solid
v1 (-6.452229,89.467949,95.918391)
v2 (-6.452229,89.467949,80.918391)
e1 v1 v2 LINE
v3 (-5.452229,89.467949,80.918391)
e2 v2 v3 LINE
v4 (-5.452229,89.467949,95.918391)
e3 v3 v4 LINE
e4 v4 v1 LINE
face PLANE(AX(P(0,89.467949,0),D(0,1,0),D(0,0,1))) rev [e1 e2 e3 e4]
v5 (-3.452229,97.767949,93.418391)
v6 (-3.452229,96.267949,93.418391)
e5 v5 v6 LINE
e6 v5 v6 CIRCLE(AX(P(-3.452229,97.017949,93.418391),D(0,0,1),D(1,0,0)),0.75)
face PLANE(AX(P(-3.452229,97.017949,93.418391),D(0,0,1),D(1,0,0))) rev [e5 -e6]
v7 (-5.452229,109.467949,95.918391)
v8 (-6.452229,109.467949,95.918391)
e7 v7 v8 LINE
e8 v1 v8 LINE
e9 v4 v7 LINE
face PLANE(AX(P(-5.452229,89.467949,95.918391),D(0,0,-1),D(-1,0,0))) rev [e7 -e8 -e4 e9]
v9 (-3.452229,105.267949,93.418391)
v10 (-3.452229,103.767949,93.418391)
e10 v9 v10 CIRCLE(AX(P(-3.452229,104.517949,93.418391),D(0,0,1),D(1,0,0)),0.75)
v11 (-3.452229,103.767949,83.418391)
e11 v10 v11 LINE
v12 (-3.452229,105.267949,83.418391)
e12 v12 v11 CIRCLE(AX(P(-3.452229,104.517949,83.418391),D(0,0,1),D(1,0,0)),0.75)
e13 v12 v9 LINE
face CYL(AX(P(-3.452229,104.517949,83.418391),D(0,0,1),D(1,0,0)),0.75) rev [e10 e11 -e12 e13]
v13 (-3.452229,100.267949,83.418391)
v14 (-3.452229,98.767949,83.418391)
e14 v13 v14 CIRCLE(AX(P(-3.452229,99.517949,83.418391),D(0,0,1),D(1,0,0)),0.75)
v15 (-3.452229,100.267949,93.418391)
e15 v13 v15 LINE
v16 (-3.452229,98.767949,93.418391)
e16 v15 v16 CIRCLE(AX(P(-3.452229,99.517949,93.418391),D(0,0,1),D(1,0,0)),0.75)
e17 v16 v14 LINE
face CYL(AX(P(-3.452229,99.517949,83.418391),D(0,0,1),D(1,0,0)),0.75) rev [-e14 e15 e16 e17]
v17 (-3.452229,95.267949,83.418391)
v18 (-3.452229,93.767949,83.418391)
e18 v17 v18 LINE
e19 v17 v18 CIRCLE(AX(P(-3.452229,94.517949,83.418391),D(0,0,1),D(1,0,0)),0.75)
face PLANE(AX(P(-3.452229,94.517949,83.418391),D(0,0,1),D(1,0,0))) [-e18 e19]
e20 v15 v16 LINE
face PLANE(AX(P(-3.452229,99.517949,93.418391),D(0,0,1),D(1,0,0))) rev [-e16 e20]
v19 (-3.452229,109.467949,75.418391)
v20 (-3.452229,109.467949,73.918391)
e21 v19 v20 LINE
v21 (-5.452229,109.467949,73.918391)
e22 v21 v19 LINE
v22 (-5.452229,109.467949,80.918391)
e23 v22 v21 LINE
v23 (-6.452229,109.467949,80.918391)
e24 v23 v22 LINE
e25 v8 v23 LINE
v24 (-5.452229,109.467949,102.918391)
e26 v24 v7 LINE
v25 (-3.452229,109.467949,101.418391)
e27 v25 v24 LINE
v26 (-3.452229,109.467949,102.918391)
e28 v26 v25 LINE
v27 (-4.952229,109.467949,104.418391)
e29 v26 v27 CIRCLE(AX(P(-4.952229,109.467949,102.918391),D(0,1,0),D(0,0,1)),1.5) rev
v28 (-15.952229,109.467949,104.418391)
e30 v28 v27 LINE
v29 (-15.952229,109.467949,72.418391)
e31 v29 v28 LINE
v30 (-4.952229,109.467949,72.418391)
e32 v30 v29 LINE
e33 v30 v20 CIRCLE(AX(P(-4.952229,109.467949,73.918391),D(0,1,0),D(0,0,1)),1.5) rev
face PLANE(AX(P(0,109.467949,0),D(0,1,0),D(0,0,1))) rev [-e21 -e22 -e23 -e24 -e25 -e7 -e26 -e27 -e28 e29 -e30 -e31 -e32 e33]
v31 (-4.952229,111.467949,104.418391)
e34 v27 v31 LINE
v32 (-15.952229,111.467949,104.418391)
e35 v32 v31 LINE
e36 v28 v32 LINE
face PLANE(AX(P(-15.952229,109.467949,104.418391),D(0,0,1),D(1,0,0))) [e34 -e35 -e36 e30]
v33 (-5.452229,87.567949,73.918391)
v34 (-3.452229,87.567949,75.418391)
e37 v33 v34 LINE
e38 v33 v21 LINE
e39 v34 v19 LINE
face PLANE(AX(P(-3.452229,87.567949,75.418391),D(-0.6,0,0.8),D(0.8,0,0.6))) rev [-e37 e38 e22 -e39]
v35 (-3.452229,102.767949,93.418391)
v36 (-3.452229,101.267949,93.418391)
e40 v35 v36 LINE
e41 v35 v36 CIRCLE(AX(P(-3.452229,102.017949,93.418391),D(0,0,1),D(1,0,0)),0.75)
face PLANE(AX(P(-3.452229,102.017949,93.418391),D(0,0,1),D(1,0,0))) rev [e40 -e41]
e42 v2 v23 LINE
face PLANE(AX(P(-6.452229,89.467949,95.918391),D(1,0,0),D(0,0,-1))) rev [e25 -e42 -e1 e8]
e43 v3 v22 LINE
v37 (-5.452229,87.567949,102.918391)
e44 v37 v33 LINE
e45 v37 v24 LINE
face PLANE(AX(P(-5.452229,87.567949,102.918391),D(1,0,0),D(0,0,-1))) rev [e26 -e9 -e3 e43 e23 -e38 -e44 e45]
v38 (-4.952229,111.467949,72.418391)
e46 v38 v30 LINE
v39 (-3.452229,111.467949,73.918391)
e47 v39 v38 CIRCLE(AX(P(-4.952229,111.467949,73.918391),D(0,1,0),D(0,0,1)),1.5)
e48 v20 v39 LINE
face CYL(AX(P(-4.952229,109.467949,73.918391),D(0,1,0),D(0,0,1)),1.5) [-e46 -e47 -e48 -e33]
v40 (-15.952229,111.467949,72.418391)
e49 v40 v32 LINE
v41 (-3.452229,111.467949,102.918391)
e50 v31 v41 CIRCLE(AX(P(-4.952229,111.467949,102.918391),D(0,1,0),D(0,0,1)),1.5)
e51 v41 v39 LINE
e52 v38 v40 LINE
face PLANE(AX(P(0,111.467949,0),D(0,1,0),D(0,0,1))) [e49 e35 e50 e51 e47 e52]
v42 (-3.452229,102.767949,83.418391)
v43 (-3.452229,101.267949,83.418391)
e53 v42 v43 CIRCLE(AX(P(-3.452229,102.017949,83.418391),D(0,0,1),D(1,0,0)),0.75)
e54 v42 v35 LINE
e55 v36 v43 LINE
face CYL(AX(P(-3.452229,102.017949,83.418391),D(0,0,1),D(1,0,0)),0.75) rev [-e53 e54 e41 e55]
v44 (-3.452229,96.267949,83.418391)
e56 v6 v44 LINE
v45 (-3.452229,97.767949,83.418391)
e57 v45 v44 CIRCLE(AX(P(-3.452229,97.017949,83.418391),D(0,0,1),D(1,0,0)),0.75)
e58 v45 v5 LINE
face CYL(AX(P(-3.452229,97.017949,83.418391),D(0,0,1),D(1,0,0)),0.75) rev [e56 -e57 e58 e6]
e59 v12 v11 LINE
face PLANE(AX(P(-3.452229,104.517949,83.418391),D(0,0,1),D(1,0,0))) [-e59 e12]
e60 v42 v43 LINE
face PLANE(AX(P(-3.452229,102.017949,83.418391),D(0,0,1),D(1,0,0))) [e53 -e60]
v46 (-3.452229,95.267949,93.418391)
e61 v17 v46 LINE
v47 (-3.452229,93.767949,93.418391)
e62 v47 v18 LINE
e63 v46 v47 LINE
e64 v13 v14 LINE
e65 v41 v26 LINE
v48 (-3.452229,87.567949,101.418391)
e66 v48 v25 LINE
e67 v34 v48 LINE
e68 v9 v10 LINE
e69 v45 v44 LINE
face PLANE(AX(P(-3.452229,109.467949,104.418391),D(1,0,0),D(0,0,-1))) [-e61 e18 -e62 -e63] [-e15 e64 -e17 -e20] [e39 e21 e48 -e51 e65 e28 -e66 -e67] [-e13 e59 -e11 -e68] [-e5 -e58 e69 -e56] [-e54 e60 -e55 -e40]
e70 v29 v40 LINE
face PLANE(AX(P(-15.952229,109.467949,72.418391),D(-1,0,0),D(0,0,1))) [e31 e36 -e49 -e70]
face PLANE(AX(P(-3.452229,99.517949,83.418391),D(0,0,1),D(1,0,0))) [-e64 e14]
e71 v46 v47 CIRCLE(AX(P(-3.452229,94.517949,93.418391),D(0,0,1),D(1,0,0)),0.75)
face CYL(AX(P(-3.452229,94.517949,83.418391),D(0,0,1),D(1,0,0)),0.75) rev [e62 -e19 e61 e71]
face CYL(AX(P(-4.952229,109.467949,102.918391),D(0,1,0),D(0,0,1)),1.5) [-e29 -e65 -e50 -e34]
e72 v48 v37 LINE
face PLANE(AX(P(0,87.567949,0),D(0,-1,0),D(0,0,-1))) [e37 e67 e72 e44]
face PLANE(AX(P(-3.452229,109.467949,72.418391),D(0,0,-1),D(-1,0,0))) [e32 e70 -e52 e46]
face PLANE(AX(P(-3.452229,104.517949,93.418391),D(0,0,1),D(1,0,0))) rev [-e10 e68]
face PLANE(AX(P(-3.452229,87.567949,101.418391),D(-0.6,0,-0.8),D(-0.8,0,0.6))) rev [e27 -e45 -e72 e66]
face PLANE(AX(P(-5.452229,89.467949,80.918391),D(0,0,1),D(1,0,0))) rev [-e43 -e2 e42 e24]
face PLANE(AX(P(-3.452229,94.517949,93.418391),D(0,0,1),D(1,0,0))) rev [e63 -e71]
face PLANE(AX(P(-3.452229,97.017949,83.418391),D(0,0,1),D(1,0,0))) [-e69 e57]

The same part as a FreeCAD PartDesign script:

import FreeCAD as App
import Part
import Sketcher
from FreeCAD import Vector


def edges_at(feature, points):
    """Names of the edges that pass closest to the given points."""
    edges = feature.Shape.Edges
    near = lambda p: min(range(len(edges)), key=lambda i: edges[i].distToShape(Part.Vertex(*p))[0])
    return sorted({f"Edge{near(p) + 1}" for p in points})

doc = App.newDocument("Part")
body = doc.addObject("PartDesign::Body", "Body")

sketch1 = body.newObject("Sketcher::SketchObject", "Sketch")
sketch1.AttachmentSupport = (doc.getObject("XZ_Plane"), [""])
sketch1.MapMode = "FlatFace"
sketch1.AttachmentOffset = App.Placement(Vector(0, 0, -111.467949), App.Rotation())
sketch1.addGeometry([
    Part.LineSegment(Vector(-16, 72, 0), Vector(-16, 104, 0)),
    Part.LineSegment(Vector(-16, 104, 0), Vector(-3, 104, 0)),
    Part.LineSegment(Vector(-3, 104, 0), Vector(-3, 72, 0)),
    Part.LineSegment(Vector(-3, 72, 0), Vector(-16, 72, 0)),
], False)
sketch1.addConstraint([
    Sketcher.Constraint("Coincident", 0, 2, 1, 1),
    Sketcher.Constraint("Coincident", 1, 2, 2, 1),
    Sketcher.Constraint("Coincident", 2, 2, 3, 1),
    Sketcher.Constraint("Coincident", 3, 2, 0, 1),
    Sketcher.Constraint("Vertical", 0),
    Sketcher.Constraint("Horizontal", 1),
    Sketcher.Constraint("Vertical", 2),
    Sketcher.Constraint("Horizontal", 3),
    Sketcher.Constraint("DistanceY", 0, 1, 0, 2, 32.0),
    Sketcher.Constraint("DistanceX", 1, 1, 1, 2, 12.5),
    Sketcher.Constraint("DistanceX", 0, 2, -1, 1, 15.952229),
    Sketcher.Constraint("DistanceY", -1, 1, 0, 2, 104.418391),
])
pad1 = body.newObject("PartDesign::Pad", "Pad")
pad1.Profile = sketch1
pad1.Length = 2

sketch2 = body.newObject("Sketcher::SketchObject", "Sketch001")
sketch2.AttachmentSupport = (doc.getObject("XZ_Plane"), [""])
sketch2.MapMode = "FlatFace"
sketch2.AttachmentOffset = App.Placement(Vector(0, 0, -109.467949), App.Rotation())
sketch2.addGeometry([
    Part.LineSegment(Vector(-3.5, 101.4, 0), Vector(-5.5, 102.9, 0)),
    Part.LineSegment(Vector(-5.5, 102.9, 0), Vector(-5.5, 73.9, 0)),
    Part.LineSegment(Vector(-5.5, 73.9, 0), Vector(-3.5, 75.4, 0)),
    Part.LineSegment(Vector(-3.5, 75.4, 0), Vector(-3.5, 101.4, 0)),
], False)
sketch2.addConstraint([
    Sketcher.Constraint("Coincident", 0, 2, 1, 1),
    Sketcher.Constraint("Coincident", 1, 2, 2, 1),
    Sketcher.Constraint("Coincident", 2, 2, 3, 1),
    Sketcher.Constraint("Coincident", 3, 2, 0, 1),
    Sketcher.Constraint("Vertical", 1),
    Sketcher.Constraint("Vertical", 3),
    Sketcher.Constraint("Equal", 0, 2),
    Sketcher.Constraint("DistanceY", 1, 2, 1, 1, 29.0),
    Sketcher.Constraint("DistanceY", 3, 1, 3, 2, 26.0),
    Sketcher.Constraint("DistanceX", 1, 2, 2, 2, 2.0),
    Sketcher.Constraint("DistanceX", 0, 2, -1, 1, 5.452229),
    Sketcher.Constraint("DistanceY", -1, 1, 0, 2, 102.918391),
])
pad2 = body.newObject("PartDesign::Pad", "Pad001")
pad2.Profile = sketch2
pad2.Length = 21.9

sketch3 = body.newObject("Sketcher::SketchObject", "Sketch002")
sketch3.AttachmentSupport = (doc.getObject("XZ_Plane"), [""])
sketch3.MapMode = "FlatFace"
sketch3.AttachmentOffset = App.Placement(Vector(0, 0, -109.467949), App.Rotation())
sketch3.addGeometry([
    Part.LineSegment(Vector(-6.5, 95.9, 0), Vector(-6.5, 80.9, 0)),
    Part.LineSegment(Vector(-6.5, 80.9, 0), Vector(-5.5, 80.9, 0)),
    Part.LineSegment(Vector(-5.5, 80.9, 0), Vector(-5.5, 95.9, 0)),
    Part.LineSegment(Vector(-5.5, 95.9, 0), Vector(-6.5, 95.9, 0)),
], False)
sketch3.addConstraint([
    Sketcher.Constraint("Coincident", 0, 2, 1, 1),
    Sketcher.Constraint("Coincident", 1, 2, 2, 1),
    Sketcher.Constraint("Coincident", 2, 2, 3, 1),
    Sketcher.Constraint("Coincident", 3, 2, 0, 1),
    Sketcher.Constraint("Vertical", 0),
    Sketcher.Constraint("Horizontal", 1),
    Sketcher.Constraint("Vertical", 2),
    Sketcher.Constraint("Horizontal", 3),
    Sketcher.Constraint("DistanceX", 1, 1, 1, 2, 1.0),
    Sketcher.Constraint("DistanceY", 0, 2, 0, 1, 15.0),
    Sketcher.Constraint("DistanceX", 0, 2, -1, 1, 6.452229),
    Sketcher.Constraint("DistanceY", -1, 1, 0, 2, 80.918391),
])
pad3 = body.newObject("PartDesign::Pad", "Pad002")
pad3.Profile = sketch3
pad3.Length = 20

sketch4 = body.newObject("Sketcher::SketchObject", "Sketch003")
sketch4.AttachmentSupport = (doc.getObject("XY_Plane"), [""])
sketch4.MapMode = "FlatFace"
sketch4.AttachmentOffset = App.Placement(Vector(0, 0, 88.418391), App.Rotation())
sketch4.addGeometry([
    Part.Circle(Vector(-3.5, 104.5, 0), Vector(0, 0, 1), 0.8),
    Part.Circle(Vector(-3.5, 102, 0), Vector(0, 0, 1), 0.8),
    Part.Circle(Vector(-3.5, 99.5, 0), Vector(0, 0, 1), 0.8),
    Part.Circle(Vector(-3.5, 97, 0), Vector(0, 0, 1), 0.8),
    Part.Circle(Vector(-3.5, 94.5, 0), Vector(0, 0, 1), 0.8),
], False)
sketch4.addConstraint([
    Sketcher.Constraint("Equal", 0, 1),
    Sketcher.Constraint("Equal", 1, 2),
    Sketcher.Constraint("Equal", 2, 3),
    Sketcher.Constraint("Equal", 3, 4),
    Sketcher.Constraint("Vertical", 0, 3, 1, 3),
    Sketcher.Constraint("Vertical", 1, 3, 2, 3),
    Sketcher.Constraint("Vertical", 2, 3, 3, 3),
    Sketcher.Constraint("Vertical", 3, 3, 4, 3),
    Sketcher.Constraint("Diameter", 0, 1.5),
    Sketcher.Constraint("DistanceY", 2, 3, 0, 3, 5.0),
    Sketcher.Constraint("DistanceY", 3, 3, 1, 3, 5.0),
    Sketcher.Constraint("DistanceY", 4, 3, 2, 3, 5.0),
    Sketcher.Constraint("DistanceY", 1, 3, 0, 3, 2.5),
    Sketcher.Constraint("DistanceX", 0, 3, -1, 1, 3.452229),
    Sketcher.Constraint("DistanceY", -1, 1, 0, 3, 104.517949),
])
pocket1 = body.newObject("PartDesign::Pocket", "Pocket")
pocket1.Profile = sketch4
pocket1.Length = 10
pocket1.Midplane = True
doc.recompute()

fillet = body.newObject("PartDesign::Fillet", "Fillet")
fillet.Base = (pocket1, edges_at(pocket1, [(-3.452, 110.468, 72.418), (-3.452, 110.468, 104.418)]))
fillet.Radius = 1.5

doc.recompute()
